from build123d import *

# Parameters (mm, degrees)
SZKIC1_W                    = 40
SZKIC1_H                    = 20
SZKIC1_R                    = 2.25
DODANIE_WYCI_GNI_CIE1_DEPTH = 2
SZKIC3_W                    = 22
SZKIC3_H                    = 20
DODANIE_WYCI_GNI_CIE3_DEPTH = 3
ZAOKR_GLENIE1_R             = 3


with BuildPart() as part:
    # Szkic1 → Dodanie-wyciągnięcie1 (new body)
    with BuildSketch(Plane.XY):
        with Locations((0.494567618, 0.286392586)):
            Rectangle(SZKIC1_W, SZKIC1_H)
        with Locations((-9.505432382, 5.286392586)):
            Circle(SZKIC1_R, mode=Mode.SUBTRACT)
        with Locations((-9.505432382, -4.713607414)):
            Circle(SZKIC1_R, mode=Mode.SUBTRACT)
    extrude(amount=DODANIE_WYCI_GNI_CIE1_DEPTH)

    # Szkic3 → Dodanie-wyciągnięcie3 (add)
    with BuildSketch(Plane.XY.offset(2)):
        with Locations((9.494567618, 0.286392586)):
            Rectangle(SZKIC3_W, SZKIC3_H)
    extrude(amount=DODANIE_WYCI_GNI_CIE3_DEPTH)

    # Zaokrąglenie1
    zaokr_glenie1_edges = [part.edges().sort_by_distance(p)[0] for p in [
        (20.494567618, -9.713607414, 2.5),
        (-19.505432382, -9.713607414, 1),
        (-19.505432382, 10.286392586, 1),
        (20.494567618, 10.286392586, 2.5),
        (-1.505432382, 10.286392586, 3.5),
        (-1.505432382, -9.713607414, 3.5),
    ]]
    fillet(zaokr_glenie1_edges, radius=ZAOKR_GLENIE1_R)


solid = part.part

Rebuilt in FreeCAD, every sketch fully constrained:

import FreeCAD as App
import Part
import Sketcher

V = App.Vector


def edges_at(feature, points):
    """Names of the edges that pass closest to the given points."""
    edges = feature.Shape.Edges
    near = lambda p: min(range(len(edges)), key=lambda i: edges[i].distToShape(Part.Vertex(*p))[0])
    return sorted({f"Edge{near(p) + 1}" for p in points})

doc = App.newDocument("Part")
body = doc.addObject("PartDesign::Body", "Body")

# Sketch on XY plane
sketch1 = body.newObject("Sketcher::SketchObject", "Sketch")
sketch1.AttachmentSupport = (doc.getObject("XY_Plane"), [""])
sketch1.MapMode = "FlatFace"
sketch1.addGeometry([
    Part.LineSegment(V(-19.505432, 10.286393, 0), V(-19.505432, -9.713607, 0)),  # 0
    Part.LineSegment(V(-19.505432, -9.713607, 0), V(20.494568, -9.713607, 0)),  # 1
    Part.LineSegment(V(20.494568, -9.713607, 0), V(20.494568, 10.286393, 0)),  # 2
    Part.LineSegment(V(20.494568, 10.286393, 0), V(-19.505432, 10.286393, 0)),  # 3
    Part.Circle(V(-9.505432, -4.713607, 0), V(0, 0, 1), 2.25),  # 4
    Part.Circle(V(-9.505432, 5.286393, 0), V(0, 0, 1), 2.25),  # 5
], False)
sketch1.addConstraint([
    Sketcher.Constraint("Coincident", 0, 2, 1, 1),
    Sketcher.Constraint("Coincident", 1, 2, 2, 1),
    Sketcher.Constraint("Coincident", 2, 2, 3, 1),
    Sketcher.Constraint("Coincident", 3, 2, 0, 1),
    Sketcher.Constraint("Vertical", 0),
    Sketcher.Constraint("Horizontal", 1),
    Sketcher.Constraint("Vertical", 2),
    Sketcher.Constraint("Horizontal", 3),
    Sketcher.Constraint("Equal", 4, 5),
    Sketcher.Constraint("Vertical", 4, 3, 5, 3),
    Sketcher.Constraint("Diameter", 4, 4.5),
    Sketcher.Constraint("DistanceX", 1, 1, 1, 2, 40.0),
    Sketcher.Constraint("DistanceY", 0, 2, 0, 1, 20.0),
    Sketcher.Constraint("DistanceY", 4, 3, 5, 3, 10.0),
    Sketcher.Constraint("DistanceX", 0, 2, 4, 3, 10.0),
    Sketcher.Constraint("DistanceY", 0, 2, 4, 3, 5.0),
    Sketcher.Constraint("DistanceX", 4, 3, -1, 1, 9.505432),
    Sketcher.Constraint("DistanceY", 4, 3, -1, 1, 4.713607),
])
pad1 = body.newObject("PartDesign::Pad", "Pad")
pad1.Profile = sketch1
pad1.Length = 2

# Sketch on XY plane
sketch2 = body.newObject("Sketcher::SketchObject", "Sketch001")
sketch2.AttachmentSupport = (doc.getObject("XY_Plane"), [""])
sketch2.MapMode = "FlatFace"
sketch2.AttachmentOffset = App.Placement(V(0, 0, 2), App.Rotation())
sketch2.addGeometry([
    Part.LineSegment(V(-1.505432, 10.286393, 0), V(-1.505432, -9.713607, 0)),
    Part.LineSegment(V(-1.505432, -9.713607, 0), V(20.494568, -9.713607, 0)),
    Part.LineSegment(V(20.494568, -9.713607, 0), V(20.494568, 10.286393, 0)),
    Part.LineSegment(V(20.494568, 10.286393, 0), V(-1.505432, 10.286393, 0)),
], False)
sketch2.addConstraint([
    Sketcher.Constraint("Coincident", 0, 2, 1, 1),
    Sketcher.Constraint("Coincident", 1, 2, 2, 1),
    Sketcher.Constraint("Coincident", 2, 2, 3, 1),
    Sketcher.Constraint("Coincident", 3, 2, 0, 1),
    Sketcher.Constraint("Vertical", 0),
    Sketcher.Constraint("Horizontal", 1),
    Sketcher.Constraint("Vertical", 2),
    Sketcher.Constraint("Horizontal", 3),
    Sketcher.Constraint("DistanceX", 1, 1, 1, 2, 22.0),
    Sketcher.Constraint("DistanceY", 0, 2, 0, 1, 20.0),
    Sketcher.Constraint("DistanceX", 0, 2, -1, 1, 1.505432),
    Sketcher.Constraint("DistanceY", 0, 2, -1, 1, 9.713607),
])
pad2 = body.newObject("PartDesign::Pad", "Pad001")
pad2.Profile = sketch2
pad2.Length = 3
doc.recompute()

fillet = body.newObject("PartDesign::Fillet", "Fillet")
fillet.Base = (pad2, edges_at(pad2, [
    (20.495, -9.714, 2.5),
    (-19.505, -9.714, 1),
    (-19.505, 10.286, 1),
    (20.495, 10.286, 2.5),
    (-1.505, 10.286, 3.5),
    (-1.505, -9.714, 3.5),
]))
fillet.Radius = 3

doc.recompute()
